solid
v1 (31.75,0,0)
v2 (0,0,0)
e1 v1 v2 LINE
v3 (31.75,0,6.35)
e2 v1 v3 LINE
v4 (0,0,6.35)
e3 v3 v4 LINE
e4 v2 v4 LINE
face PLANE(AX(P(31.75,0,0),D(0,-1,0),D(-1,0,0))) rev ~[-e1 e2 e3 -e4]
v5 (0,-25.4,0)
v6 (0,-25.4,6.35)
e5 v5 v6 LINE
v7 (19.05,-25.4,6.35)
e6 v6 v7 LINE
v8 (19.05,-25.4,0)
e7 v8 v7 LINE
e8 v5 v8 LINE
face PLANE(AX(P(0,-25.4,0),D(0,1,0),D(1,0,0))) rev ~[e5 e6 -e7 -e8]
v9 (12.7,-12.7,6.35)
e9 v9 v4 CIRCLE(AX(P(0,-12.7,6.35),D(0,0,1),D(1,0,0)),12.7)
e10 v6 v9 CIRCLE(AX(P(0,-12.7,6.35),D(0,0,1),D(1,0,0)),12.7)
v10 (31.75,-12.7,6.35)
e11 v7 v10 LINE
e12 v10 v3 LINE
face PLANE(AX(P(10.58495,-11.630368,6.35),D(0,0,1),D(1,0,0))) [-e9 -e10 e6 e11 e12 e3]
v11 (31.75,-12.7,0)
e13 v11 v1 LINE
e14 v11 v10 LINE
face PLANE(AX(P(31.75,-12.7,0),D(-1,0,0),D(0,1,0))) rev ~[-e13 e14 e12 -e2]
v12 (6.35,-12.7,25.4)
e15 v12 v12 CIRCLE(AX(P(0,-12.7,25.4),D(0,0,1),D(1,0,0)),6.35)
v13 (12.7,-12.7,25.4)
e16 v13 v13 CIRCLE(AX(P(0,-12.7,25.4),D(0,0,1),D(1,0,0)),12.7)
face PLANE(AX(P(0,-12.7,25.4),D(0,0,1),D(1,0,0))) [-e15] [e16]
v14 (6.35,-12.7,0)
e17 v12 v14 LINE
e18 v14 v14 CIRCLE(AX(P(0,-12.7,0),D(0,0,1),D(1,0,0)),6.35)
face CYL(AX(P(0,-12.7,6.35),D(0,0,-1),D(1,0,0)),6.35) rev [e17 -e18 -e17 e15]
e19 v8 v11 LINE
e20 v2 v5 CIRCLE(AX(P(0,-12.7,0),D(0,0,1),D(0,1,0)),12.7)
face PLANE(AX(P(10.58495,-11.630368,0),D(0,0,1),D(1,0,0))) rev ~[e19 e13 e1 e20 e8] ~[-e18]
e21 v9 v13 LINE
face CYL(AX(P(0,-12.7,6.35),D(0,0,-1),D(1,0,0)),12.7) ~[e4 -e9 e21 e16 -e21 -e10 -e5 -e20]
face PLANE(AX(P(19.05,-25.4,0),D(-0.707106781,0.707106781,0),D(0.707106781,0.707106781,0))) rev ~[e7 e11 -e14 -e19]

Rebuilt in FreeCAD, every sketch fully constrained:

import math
import FreeCAD as App
import Part
import Sketcher
from FreeCAD import Vector
Q = App.Units.Quantity

doc = App.newDocument("Part")
params = doc.addObject("Spreadsheet::Sheet", "Params")
for row, (alias, value) in enumerate([
    ("sketch1_diameter", "0.5 in"),
    ("sketch1_radius", "0.5 in"),
    ("sketch1_width", "1.25 in"),
    ("pad1_length", "0.25 in"),
    ("sketch2_diameter", "1 in"),
    ("sketch2_diameter2", "0.5 in"),
    ("pad2_length", "0.75 in"),
], start=1):
    params.set(f"A{row}", alias)
    params.set(f"B{row}", "=" + value)
    params.setAlias(f"B{row}", alias)

body = doc.addObject("PartDesign::Body", "Body")

# Sketch on XY plane
sketch1 = body.newObject("Sketcher::SketchObject", "Sketch")
sketch1.AttachmentSupport = (doc.getObject("XY_Plane"), [""])
sketch1.MapMode = "FlatFace"
sketch1.addGeometry(Part.LineSegment(Vector(32, 0, 0), Vector(0, 0, 0)), False)
sketch1.addGeometry(Part.ArcOfCircle(Part.Circle(Vector(0, -13, 0), Vector(0, 0, 1), 13), math.radians(90), math.radians(270)), False)
sketch1.addGeometry(Part.LineSegment(Vector(0, -25, 0), Vector(19, -25, 0)), False)
sketch1.addGeometry(Part.LineSegment(Vector(19, -25, 0), Vector(32, -13, 0)), False)
sketch1.addGeometry(Part.LineSegment(Vector(32, -13, 0), Vector(32, 0, 0)), False)
sketch1.addGeometry(Part.Circle(Vector(0, -13, 0), Vector(0, 0, 1), 6), False)
sketch1.addConstraint(Sketcher.Constraint("Tangent", 0, 2, 1, 1))
sketch1.addConstraint(Sketcher.Constraint("Tangent", 1, 2, 2, 1))
sketch1.addConstraint(Sketcher.Constraint("Coincident", 2, 2, 3, 1))
sketch1.addConstraint(Sketcher.Constraint("Coincident", 3, 2, 4, 1))
sketch1.addConstraint(Sketcher.Constraint("Coincident", 4, 2, 0, 1))
sketch1.addConstraint(Sketcher.Constraint("Horizontal", 0))
sketch1.addConstraint(Sketcher.Constraint("Horizontal", 2))
sketch1.addConstraint(Sketcher.Constraint("Vertical", 4))
sketch1.addConstraint(Sketcher.Constraint("Coincident", 0, 2, -1, 1))
sketch1.addConstraint(Sketcher.Constraint("Coincident", 5, 3, 1, 3))
sketch1.addConstraint(Sketcher.Constraint("Horizontal", 5, 3, 3, 2))
sketch1.addConstraint(Sketcher.Constraint("Diameter", 5, Q("0.5 in")))
sketch1.addConstraint(Sketcher.Constraint("Radius", 1, Q("0.5 in")))
sketch1.addConstraint(Sketcher.Constraint("Angle", 3, Q("45 deg")))
sketch1.addConstraint(Sketcher.Constraint("DistanceX", 0, 2, 0, 1, Q("1.25 in")))
sketch1.setExpression("Constraints[11]", "Params.sketch1_diameter")
sketch1.setExpression("Constraints[12]", "Params.sketch1_radius")
sketch1.setExpression("Constraints[14]", "Params.sketch1_width")
pad1 = body.newObject("PartDesign::Pad", "Pad")
pad1.Profile = sketch1
pad1.setExpression("Length", "Params.pad1_length")

# Sketch on XY plane
sketch2 = body.newObject("Sketcher::SketchObject", "Sketch001")
sketch2.AttachmentSupport = (doc.getObject("XY_Plane"), [""])
sketch2.MapMode = "FlatFace"
sketch2.AttachmentOffset = App.Placement(Vector(0, 0, 0.25 * 25.4), App.Rotation())
sketch2.addGeometry(Part.Circle(Vector(0, -13, 0), Vector(0, 0, 1), 13), False)
sketch2.addGeometry(Part.Circle(Vector(0, -13, 0), Vector(0, 0, 1), 6), False)
sketch2.addConstraint(Sketcher.Constraint("Coincident", 1, 3, 0, 3))
sketch2.addConstraint(Sketcher.Constraint("PointOnObject", 0, 3, -2))
sketch2.addConstraint(Sketcher.Constraint("Diameter", 0, Q("1 in")))
sketch2.addConstraint(Sketcher.Constraint("Diameter", 1, Q("0.5 in")))
sketch2.addConstraint(Sketcher.Constraint("DistanceY", 0, 3, -1, 1, Q("0.5 in")))
sketch2.setExpression("Constraints[2]", "Params.sketch2_diameter")
sketch2.setExpression("Constraints[3]", "Params.sketch2_diameter2")
pad2 = body.newObject("PartDesign::Pad", "Pad001")
pad2.Profile = sketch2
pad2.setExpression("Length", "Params.pad2_length")

doc.recompute()
